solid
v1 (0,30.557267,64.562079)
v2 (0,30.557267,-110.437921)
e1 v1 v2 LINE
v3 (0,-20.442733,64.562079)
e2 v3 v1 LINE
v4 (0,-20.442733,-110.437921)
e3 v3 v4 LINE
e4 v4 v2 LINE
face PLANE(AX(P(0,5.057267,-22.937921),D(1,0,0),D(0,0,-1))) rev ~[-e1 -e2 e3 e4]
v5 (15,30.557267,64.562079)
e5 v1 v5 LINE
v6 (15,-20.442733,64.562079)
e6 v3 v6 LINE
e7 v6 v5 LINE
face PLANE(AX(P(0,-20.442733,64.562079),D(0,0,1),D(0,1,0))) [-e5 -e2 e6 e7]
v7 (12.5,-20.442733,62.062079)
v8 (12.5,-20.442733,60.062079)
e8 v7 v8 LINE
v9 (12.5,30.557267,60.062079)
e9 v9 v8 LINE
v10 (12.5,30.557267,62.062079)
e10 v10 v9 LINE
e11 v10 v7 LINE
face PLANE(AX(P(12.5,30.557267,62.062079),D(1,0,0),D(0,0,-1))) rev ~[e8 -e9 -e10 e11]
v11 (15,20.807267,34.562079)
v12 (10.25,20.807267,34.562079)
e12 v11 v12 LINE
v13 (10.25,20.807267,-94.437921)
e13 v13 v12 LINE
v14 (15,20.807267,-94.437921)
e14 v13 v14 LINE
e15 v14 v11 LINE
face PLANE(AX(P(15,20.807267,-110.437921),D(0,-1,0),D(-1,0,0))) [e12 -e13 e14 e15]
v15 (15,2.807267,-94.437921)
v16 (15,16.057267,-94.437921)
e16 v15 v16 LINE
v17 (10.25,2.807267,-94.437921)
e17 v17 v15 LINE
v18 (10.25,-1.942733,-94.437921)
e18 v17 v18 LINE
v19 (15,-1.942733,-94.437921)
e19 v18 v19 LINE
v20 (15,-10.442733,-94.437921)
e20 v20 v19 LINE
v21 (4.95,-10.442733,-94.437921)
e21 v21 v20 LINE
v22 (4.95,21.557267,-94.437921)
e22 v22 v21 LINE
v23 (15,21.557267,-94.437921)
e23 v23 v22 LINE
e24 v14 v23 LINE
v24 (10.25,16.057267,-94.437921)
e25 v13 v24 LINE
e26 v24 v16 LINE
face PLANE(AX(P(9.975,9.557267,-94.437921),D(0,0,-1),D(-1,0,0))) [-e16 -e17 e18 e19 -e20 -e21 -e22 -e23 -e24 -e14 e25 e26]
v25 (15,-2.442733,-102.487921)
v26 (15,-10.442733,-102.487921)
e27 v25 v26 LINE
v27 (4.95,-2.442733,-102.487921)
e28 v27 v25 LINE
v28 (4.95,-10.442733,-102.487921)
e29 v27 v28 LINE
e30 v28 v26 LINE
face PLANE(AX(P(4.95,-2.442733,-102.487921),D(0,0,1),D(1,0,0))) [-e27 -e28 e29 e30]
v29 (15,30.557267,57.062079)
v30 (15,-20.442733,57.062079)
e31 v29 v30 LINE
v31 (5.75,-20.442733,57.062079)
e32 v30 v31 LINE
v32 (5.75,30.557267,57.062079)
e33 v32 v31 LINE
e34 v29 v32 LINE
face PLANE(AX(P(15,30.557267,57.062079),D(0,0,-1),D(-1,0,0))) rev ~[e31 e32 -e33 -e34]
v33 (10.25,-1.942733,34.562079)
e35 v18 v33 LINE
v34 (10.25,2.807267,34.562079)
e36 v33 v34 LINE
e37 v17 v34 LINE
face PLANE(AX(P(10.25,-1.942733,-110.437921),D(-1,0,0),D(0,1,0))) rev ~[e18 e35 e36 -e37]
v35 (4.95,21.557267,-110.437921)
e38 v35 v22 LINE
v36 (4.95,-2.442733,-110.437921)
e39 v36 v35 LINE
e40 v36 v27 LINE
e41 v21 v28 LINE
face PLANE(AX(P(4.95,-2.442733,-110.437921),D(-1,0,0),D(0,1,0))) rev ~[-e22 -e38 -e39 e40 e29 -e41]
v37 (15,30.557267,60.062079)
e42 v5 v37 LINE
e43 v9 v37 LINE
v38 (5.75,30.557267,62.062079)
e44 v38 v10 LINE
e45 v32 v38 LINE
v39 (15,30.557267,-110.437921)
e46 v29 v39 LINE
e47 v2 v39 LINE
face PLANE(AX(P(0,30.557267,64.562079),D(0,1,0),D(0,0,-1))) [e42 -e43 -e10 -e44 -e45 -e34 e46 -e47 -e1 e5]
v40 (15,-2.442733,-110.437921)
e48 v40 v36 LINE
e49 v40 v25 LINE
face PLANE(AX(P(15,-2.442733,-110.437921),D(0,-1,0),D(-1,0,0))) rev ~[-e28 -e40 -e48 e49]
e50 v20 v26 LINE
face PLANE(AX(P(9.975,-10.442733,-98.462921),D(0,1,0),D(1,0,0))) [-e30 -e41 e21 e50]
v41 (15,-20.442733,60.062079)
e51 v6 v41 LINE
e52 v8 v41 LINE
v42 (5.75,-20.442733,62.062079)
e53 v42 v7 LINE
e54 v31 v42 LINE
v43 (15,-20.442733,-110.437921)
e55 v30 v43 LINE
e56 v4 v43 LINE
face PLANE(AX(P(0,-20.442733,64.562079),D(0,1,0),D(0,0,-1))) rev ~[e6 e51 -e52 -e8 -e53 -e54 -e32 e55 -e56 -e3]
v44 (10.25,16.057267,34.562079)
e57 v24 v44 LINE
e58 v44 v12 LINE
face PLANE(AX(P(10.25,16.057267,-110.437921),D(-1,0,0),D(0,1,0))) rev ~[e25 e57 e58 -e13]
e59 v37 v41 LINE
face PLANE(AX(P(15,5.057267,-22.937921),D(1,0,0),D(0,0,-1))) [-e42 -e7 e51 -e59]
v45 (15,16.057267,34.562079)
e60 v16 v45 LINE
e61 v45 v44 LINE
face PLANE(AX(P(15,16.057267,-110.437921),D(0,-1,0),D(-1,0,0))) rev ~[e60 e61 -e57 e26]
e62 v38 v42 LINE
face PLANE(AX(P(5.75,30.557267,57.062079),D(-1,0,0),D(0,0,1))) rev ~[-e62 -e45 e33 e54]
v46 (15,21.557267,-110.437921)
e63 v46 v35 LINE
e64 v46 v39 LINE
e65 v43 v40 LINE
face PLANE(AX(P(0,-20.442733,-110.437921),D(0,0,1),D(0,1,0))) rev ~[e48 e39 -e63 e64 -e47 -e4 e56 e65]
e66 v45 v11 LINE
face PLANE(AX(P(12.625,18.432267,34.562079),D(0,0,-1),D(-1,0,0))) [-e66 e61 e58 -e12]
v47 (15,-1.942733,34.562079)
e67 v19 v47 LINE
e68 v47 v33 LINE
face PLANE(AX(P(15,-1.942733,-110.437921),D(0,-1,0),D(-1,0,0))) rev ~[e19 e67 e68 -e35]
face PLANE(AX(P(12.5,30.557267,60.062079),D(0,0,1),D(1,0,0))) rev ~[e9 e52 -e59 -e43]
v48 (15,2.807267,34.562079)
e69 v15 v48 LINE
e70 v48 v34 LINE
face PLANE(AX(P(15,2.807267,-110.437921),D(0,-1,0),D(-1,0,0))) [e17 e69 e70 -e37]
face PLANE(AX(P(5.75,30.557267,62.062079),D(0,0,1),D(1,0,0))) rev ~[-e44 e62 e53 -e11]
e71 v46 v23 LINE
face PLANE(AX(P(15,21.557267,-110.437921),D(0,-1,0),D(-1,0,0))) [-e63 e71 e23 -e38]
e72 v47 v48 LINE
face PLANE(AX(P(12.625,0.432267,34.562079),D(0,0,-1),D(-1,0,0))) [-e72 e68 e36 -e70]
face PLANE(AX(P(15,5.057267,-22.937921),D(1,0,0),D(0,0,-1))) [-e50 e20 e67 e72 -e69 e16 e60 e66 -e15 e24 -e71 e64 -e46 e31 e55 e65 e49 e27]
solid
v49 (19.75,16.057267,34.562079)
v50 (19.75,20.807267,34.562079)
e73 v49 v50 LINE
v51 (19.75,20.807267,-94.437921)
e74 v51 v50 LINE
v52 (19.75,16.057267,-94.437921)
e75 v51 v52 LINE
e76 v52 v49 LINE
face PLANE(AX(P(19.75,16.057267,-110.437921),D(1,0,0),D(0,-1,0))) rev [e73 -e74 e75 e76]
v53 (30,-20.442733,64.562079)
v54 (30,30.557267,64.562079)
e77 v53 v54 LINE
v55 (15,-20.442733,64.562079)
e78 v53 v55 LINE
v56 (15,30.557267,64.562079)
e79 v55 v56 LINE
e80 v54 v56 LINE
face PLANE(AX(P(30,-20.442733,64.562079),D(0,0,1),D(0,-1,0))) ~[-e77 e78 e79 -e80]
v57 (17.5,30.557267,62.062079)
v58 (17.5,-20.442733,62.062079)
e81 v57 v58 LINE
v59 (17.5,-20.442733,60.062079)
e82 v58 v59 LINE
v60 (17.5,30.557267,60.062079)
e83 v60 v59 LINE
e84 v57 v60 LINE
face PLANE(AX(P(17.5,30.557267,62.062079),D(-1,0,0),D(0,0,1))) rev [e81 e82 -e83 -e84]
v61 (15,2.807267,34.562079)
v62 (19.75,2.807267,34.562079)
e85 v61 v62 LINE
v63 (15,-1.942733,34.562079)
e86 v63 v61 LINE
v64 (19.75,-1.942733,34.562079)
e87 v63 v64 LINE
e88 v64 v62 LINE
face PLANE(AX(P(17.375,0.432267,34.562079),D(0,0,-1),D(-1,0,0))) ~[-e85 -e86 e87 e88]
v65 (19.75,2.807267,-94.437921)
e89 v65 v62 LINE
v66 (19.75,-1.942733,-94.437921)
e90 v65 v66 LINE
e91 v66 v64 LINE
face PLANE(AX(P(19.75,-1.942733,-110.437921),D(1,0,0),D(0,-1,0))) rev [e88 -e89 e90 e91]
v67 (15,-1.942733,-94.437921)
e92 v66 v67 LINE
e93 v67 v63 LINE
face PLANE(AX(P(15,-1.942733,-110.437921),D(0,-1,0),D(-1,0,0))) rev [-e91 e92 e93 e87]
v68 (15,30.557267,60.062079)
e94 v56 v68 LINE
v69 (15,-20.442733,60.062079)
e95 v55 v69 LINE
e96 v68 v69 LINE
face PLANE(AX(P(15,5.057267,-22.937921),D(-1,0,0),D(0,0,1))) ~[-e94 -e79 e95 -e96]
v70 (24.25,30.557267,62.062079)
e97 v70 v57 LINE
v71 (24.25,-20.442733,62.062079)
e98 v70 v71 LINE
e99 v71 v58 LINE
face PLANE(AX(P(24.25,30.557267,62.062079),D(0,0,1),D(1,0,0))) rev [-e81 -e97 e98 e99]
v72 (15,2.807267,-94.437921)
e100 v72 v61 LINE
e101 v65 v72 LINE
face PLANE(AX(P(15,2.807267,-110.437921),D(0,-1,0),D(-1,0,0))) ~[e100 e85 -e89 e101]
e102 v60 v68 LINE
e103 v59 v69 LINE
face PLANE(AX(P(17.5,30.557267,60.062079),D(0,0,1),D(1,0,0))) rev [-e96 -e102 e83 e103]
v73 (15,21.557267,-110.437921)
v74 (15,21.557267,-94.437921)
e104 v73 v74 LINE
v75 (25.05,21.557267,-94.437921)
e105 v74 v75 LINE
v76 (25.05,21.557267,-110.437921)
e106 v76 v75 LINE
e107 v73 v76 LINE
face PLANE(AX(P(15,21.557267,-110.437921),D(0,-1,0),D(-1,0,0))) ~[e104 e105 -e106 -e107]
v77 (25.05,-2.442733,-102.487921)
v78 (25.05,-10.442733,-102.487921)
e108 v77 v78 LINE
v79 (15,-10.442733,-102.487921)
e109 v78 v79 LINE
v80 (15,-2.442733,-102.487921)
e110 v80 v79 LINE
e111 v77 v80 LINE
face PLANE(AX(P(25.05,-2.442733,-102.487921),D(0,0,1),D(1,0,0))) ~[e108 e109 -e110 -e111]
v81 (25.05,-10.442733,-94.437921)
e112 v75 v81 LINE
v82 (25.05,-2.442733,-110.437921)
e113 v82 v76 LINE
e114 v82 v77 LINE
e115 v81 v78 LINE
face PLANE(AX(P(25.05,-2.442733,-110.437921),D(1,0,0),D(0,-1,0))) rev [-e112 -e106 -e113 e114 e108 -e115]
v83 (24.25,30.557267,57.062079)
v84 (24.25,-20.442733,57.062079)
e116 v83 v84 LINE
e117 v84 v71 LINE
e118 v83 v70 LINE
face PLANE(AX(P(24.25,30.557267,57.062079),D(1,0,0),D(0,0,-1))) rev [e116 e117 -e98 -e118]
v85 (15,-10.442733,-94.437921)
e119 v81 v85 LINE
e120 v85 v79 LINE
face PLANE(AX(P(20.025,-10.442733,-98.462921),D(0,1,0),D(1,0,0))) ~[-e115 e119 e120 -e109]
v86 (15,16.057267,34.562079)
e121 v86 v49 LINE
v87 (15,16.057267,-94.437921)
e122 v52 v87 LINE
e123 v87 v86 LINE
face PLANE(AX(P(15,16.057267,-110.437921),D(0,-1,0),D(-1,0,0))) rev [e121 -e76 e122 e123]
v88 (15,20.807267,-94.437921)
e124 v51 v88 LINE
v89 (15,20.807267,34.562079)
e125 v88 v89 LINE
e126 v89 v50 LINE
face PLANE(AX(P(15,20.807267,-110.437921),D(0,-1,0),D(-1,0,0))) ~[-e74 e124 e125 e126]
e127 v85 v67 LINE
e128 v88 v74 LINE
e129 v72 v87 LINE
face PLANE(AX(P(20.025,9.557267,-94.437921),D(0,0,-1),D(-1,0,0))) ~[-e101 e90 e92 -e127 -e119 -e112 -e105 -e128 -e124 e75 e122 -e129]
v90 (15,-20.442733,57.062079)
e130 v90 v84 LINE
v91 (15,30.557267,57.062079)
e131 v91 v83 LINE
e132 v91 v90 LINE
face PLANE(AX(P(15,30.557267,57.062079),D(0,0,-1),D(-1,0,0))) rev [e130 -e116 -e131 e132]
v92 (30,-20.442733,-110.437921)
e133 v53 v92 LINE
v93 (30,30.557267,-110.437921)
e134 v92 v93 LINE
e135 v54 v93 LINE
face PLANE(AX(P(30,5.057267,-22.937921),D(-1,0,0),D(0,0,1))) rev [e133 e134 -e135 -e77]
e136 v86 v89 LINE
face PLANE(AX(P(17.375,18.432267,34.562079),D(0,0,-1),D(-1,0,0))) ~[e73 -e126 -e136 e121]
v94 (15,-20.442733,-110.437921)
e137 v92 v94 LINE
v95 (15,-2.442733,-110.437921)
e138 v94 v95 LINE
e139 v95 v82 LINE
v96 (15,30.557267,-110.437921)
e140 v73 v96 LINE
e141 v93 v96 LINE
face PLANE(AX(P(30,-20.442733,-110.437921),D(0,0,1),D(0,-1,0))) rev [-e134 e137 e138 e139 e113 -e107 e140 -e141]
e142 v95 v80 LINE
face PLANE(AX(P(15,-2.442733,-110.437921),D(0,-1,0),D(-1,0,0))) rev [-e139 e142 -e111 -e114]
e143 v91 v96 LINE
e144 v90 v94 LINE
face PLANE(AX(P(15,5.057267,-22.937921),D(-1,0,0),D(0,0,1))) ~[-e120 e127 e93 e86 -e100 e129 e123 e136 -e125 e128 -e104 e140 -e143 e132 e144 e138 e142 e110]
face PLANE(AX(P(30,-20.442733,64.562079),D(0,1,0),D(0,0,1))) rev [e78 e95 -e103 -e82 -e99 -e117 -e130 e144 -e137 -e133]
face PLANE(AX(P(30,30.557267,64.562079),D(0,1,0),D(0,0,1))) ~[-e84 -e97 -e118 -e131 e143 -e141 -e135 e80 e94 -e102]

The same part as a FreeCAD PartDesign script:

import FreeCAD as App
import Part
import Sketcher
from FreeCAD import Vector
Q = App.Units.Quantity

doc = App.newDocument("Part")
body = doc.addObject("PartDesign::Body", "Body")

# Sketch on YZ plane
sketch1 = body.newObject("Sketcher::SketchObject", "Sketch")
sketch1.AttachmentSupport = (doc.getObject("YZ_Plane"), [""])
sketch1.MapMode = "FlatFace"
sketch1.addGeometry([
    Part.LineSegment(Vector(30.557267, 64.562079, 0), Vector(-20.442733, 64.562079, 0)),
    Part.LineSegment(Vector(-20.442733, 64.562079, 0), Vector(-20.442733, -110.437921, 0)),
    Part.LineSegment(Vector(-20.442733, -110.437921, 0), Vector(30.557267, -110.437921, 0)),
    Part.LineSegment(Vector(30.557267, -110.437921, 0), Vector(30.557267, 64.562079, 0)),
], False)
sketch1.addConstraint([
    Sketcher.Constraint("Coincident", 0, 2, 1, 1),
    Sketcher.Constraint("Coincident", 1, 2, 2, 1),
    Sketcher.Constraint("Coincident", 2, 2, 3, 1),
    Sketcher.Constraint("Coincident", 3, 2, 0, 1),
    Sketcher.Constraint("Horizontal", 0),
    Sketcher.Constraint("Vertical", 1),
    Sketcher.Constraint("Horizontal", 2),
    Sketcher.Constraint("Vertical", 3),
    Sketcher.Constraint("DistanceX", 0, 2, 0, 1, Q("51 mm")),
    Sketcher.Constraint("DistanceY", 1, 2, 1, 1, Q("175 mm")),
    Sketcher.Constraint("DistanceY", -1, 1, 0, 2, Q("64.562079 mm")),
    Sketcher.Constraint("DistanceX", 0, 2, -1, 1, Q("20.442733 mm")),
])
pad1 = body.newObject("PartDesign::Pad", "Pad")
pad1.Profile = sketch1
pad1.Length = 15

# Sketch on XZ plane
sketch2 = body.newObject("Sketcher::SketchObject", "Sketch001")
sketch2.AttachmentSupport = (doc.getObject("XZ_Plane"), [""])
sketch2.MapMode = "FlatFace"
sketch2.AttachmentOffset = App.Placement(Vector(0, 0, -30.557267), App.Rotation())
sketch2.addGeometry([
    Part.LineSegment(Vector(12.5, 60.062079, 0), Vector(15, 60.062079, 0)),  # 0
    Part.LineSegment(Vector(15, 60.062079, 0), Vector(15, 57.062079, 0)),  # 1
    Part.LineSegment(Vector(15, 57.062079, 0), Vector(5.75, 57.062079, 0)),  # 2
    Part.LineSegment(Vector(5.75, 57.062079, 0), Vector(5.75, 62.062079, 0)),  # 3
    Part.LineSegment(Vector(5.75, 62.062079, 0), Vector(12.5, 62.062079, 0)),  # 4
    Part.LineSegment(Vector(12.5, 62.062079, 0), Vector(12.5, 60.062079, 0)),  # 5
], False)
sketch2.addConstraint([
    Sketcher.Constraint("Coincident", 0, 2, 1, 1),
    Sketcher.Constraint("Coincident", 1, 2, 2, 1),
    Sketcher.Constraint("Coincident", 2, 2, 3, 1),
    Sketcher.Constraint("Coincident", 3, 2, 4, 1),
    Sketcher.Constraint("Coincident", 4, 2, 5, 1),
    Sketcher.Constraint("Coincident", 5, 2, 0, 1),
    Sketcher.Constraint("Horizontal", 0),
    Sketcher.Constraint("Vertical", 1),
    Sketcher.Constraint("Horizontal", 2),
    Sketcher.Constraint("Vertical", 3),
    Sketcher.Constraint("Horizontal", 4),
    Sketcher.Constraint("Vertical", 5),
    Sketcher.Constraint("DistanceY", 1, 2, 1, 1, Q("3 mm")),
    Sketcher.Constraint("DistanceY", 3, 1, 3, 2, Q("5 mm")),
    Sketcher.Constraint("DistanceX", 0, 1, 0, 2, Q("2.5 mm")),
    Sketcher.Constraint("DistanceX", -1, 1, 0, 2, Q("15 mm")),
    Sketcher.Constraint("DistanceX", 2, 2, 2, 1, Q("9.25 mm")),
    Sketcher.Constraint("DistanceY", -1, 1, 0, 2, Q("60.062079 mm")),
])
pocket1 = body.newObject("PartDesign::Pocket", "Pocket")
pocket1.Profile = sketch2
pocket1.Type = "ThroughAll"
pocket1.Reversed = True

# Sketch on XY plane
sketch3 = body.newObject("Sketcher::SketchObject", "Sketch002")
sketch3.AttachmentSupport = (doc.getObject("XY_Plane"), [""])
sketch3.MapMode = "FlatFace"
sketch3.AttachmentOffset = App.Placement(Vector(0, 0, -110.437921), App.Rotation())
sketch3.addGeometry([
    Part.LineSegment(Vector(15, 2.807267, 0), Vector(15, -1.942733, 0)),  # 0
    Part.LineSegment(Vector(15, -1.942733, 0), Vector(10.25, -1.942733, 0)),  # 1
    Part.LineSegment(Vector(10.25, -1.942733, 0), Vector(10.25, 2.807267, 0)),  # 2
    Part.LineSegment(Vector(10.25, 2.807267, 0), Vector(15, 2.807267, 0)),  # 3
    Part.LineSegment(Vector(15, 20.807267, 0), Vector(15, 16.057267, 0)),  # 4
    Part.LineSegment(Vector(15, 16.057267, 0), Vector(10.25, 16.057267, 0)),  # 5
    Part.LineSegment(Vector(10.25, 16.057267, 0), Vector(10.25, 20.807267, 0)),  # 6
    Part.LineSegment(Vector(10.25, 20.807267, 0), Vector(15, 20.807267, 0)),  # 7
], False)
sketch3.addConstraint([
    Sketcher.Constraint("Coincident", 0, 2, 1, 1),
    Sketcher.Constraint("Coincident", 1, 2, 2, 1),
    Sketcher.Constraint("Coincident", 2, 2, 3, 1),
    Sketcher.Constraint("Coincident", 3, 2, 0, 1),
    Sketcher.Constraint("Coincident", 4, 2, 5, 1),
    Sketcher.Constraint("Coincident", 5, 2, 6, 1),
    Sketcher.Constraint("Coincident", 6, 2, 7, 1),
    Sketcher.Constraint("Coincident", 7, 2, 4, 1),
    Sketcher.Constraint("Vertical", 0),
    Sketcher.Constraint("Horizontal", 1),
    Sketcher.Constraint("Vertical", 2),
    Sketcher.Constraint("Horizontal", 3),
    Sketcher.Constraint("Vertical", 4),
    Sketcher.Constraint("Horizontal", 5),
    Sketcher.Constraint("Vertical", 6),
    Sketcher.Constraint("Horizontal", 7),
    Sketcher.Constraint("Vertical", 3, 2, 4, 2),
    Sketcher.Constraint("Vertical", 2, 2, 5, 2),
    Sketcher.Constraint("Equal", 7, 0),
    Sketcher.Constraint("Equal", 2, 4),
    Sketcher.Constraint("DistanceX", -1, 1, 0, 2, Q("15 mm")),
    Sketcher.Constraint("DistanceY", 0, 2, 4, 2, Q("18 mm")),
    Sketcher.Constraint("DistanceX", 1, 2, 1, 1, Q("4.75 mm")),
    Sketcher.Constraint("DistanceY", 0, 2, -1, 1, Q("1.942733 mm")),
])
pocket2 = body.newObject("PartDesign::Pocket", "Pocket001")
pocket2.Profile = sketch3
pocket2.Length = 145
pocket2.Reversed = True

# Sketch on XY plane
sketch4 = body.newObject("Sketcher::SketchObject", "Sketch003")
sketch4.AttachmentSupport = (doc.getObject("XY_Plane"), [""])
sketch4.MapMode = "FlatFace"
sketch4.AttachmentOffset = App.Placement(Vector(0, 0, -110.437921), App.Rotation())
sketch4.addGeometry([
    Part.LineSegment(Vector(15, 21.557267, 0), Vector(15, -2.442733, 0)),
    Part.LineSegment(Vector(15, -2.442733, 0), Vector(4.95, -2.442733, 0)),
    Part.LineSegment(Vector(4.95, -2.442733, 0), Vector(4.95, 21.557267, 0)),
    Part.LineSegment(Vector(4.95, 21.557267, 0), Vector(15, 21.557267, 0)),
], False)
sketch4.addConstraint([
    Sketcher.Constraint("Coincident", 0, 2, 1, 1),
    Sketcher.Constraint("Coincident", 1, 2, 2, 1),
    Sketcher.Constraint("Coincident", 2, 2, 3, 1),
    Sketcher.Constraint("Coincident", 3, 2, 0, 1),
    Sketcher.Constraint("Vertical", 0),
    Sketcher.Constraint("Horizontal", 1),
    Sketcher.Constraint("Vertical", 2),
    Sketcher.Constraint("Horizontal", 3),
    Sketcher.Constraint("DistanceY", 0, 2, 0, 1, Q("24 mm")),
    Sketcher.Constraint("DistanceX", -1, 1, 0, 2, Q("15 mm")),
    Sketcher.Constraint("DistanceX", 1, 2, 1, 1, Q("10.05 mm")),
    Sketcher.Constraint("DistanceY", 0, 2, -1, 1, Q("2.442733 mm")),
])
pocket3 = body.newObject("PartDesign::Pocket", "Pocket002")
pocket3.Profile = sketch4
pocket3.Length = 16
pocket3.Reversed = True

# Sketch on XZ plane
sketch5 = body.newObject("Sketcher::SketchObject", "Sketch004")
sketch5.AttachmentSupport = (doc.getObject("XZ_Plane"), [""])
sketch5.MapMode = "FlatFace"
sketch5.AttachmentOffset = App.Placement(Vector(0, 0, 2.442733), App.Rotation())
sketch5.addGeometry([
    Part.LineSegment(Vector(4.95, -102.487921, 0), Vector(4.95, -94.437921, 0)),
    Part.LineSegment(Vector(4.95, -94.437921, 0), Vector(15, -94.437921, 0)),
    Part.LineSegment(Vector(15, -94.437921, 0), Vector(15, -102.487921, 0)),
    Part.LineSegment(Vector(15, -102.487921, 0), Vector(4.95, -102.487921, 0)),
], False)
sketch5.addConstraint([
    Sketcher.Constraint("Coincident", 0, 2, 1, 1),
    Sketcher.Constraint("Coincident", 1, 2, 2, 1),
    Sketcher.Constraint("Coincident", 2, 2, 3, 1),
    Sketcher.Constraint("Coincident", 3, 2, 0, 1),
    Sketcher.Constraint("Vertical", 0),
    Sketcher.Constraint("Horizontal", 1),
    Sketcher.Constraint("Vertical", 2),
    Sketcher.Constraint("Horizontal", 3),
    Sketcher.Constraint("DistanceX", -1, 1, 1, 2, Q("15 mm")),
    Sketcher.Constraint("DistanceX", 1, 1, 1, 2, Q("10.05 mm")),
    Sketcher.Constraint("DistanceY", 0, 1, 0, 2, Q("8.05 mm")),
    Sketcher.Constraint("DistanceY", 0, 2, -1, 1, Q("94.437921 mm")),
])
pocket4 = body.newObject("PartDesign::Pocket", "Pocket003")
pocket4.Profile = sketch5
pocket4.Length = 8
pocket4.Reversed = True
body2 = doc.addObject("PartDesign::Body", "Body001")
doc.recompute()

mirroring = doc.addObject("Part::Mirroring", "Mirroring")
mirroring.Source = body
mirroring.Base = Vector(15, 0, 0)
mirroring.Normal = Vector(-1, 0, 0)
body2.BaseFeature = mirroring
doc.recompute()
mirroring.Visibility = False

doc.recompute()
